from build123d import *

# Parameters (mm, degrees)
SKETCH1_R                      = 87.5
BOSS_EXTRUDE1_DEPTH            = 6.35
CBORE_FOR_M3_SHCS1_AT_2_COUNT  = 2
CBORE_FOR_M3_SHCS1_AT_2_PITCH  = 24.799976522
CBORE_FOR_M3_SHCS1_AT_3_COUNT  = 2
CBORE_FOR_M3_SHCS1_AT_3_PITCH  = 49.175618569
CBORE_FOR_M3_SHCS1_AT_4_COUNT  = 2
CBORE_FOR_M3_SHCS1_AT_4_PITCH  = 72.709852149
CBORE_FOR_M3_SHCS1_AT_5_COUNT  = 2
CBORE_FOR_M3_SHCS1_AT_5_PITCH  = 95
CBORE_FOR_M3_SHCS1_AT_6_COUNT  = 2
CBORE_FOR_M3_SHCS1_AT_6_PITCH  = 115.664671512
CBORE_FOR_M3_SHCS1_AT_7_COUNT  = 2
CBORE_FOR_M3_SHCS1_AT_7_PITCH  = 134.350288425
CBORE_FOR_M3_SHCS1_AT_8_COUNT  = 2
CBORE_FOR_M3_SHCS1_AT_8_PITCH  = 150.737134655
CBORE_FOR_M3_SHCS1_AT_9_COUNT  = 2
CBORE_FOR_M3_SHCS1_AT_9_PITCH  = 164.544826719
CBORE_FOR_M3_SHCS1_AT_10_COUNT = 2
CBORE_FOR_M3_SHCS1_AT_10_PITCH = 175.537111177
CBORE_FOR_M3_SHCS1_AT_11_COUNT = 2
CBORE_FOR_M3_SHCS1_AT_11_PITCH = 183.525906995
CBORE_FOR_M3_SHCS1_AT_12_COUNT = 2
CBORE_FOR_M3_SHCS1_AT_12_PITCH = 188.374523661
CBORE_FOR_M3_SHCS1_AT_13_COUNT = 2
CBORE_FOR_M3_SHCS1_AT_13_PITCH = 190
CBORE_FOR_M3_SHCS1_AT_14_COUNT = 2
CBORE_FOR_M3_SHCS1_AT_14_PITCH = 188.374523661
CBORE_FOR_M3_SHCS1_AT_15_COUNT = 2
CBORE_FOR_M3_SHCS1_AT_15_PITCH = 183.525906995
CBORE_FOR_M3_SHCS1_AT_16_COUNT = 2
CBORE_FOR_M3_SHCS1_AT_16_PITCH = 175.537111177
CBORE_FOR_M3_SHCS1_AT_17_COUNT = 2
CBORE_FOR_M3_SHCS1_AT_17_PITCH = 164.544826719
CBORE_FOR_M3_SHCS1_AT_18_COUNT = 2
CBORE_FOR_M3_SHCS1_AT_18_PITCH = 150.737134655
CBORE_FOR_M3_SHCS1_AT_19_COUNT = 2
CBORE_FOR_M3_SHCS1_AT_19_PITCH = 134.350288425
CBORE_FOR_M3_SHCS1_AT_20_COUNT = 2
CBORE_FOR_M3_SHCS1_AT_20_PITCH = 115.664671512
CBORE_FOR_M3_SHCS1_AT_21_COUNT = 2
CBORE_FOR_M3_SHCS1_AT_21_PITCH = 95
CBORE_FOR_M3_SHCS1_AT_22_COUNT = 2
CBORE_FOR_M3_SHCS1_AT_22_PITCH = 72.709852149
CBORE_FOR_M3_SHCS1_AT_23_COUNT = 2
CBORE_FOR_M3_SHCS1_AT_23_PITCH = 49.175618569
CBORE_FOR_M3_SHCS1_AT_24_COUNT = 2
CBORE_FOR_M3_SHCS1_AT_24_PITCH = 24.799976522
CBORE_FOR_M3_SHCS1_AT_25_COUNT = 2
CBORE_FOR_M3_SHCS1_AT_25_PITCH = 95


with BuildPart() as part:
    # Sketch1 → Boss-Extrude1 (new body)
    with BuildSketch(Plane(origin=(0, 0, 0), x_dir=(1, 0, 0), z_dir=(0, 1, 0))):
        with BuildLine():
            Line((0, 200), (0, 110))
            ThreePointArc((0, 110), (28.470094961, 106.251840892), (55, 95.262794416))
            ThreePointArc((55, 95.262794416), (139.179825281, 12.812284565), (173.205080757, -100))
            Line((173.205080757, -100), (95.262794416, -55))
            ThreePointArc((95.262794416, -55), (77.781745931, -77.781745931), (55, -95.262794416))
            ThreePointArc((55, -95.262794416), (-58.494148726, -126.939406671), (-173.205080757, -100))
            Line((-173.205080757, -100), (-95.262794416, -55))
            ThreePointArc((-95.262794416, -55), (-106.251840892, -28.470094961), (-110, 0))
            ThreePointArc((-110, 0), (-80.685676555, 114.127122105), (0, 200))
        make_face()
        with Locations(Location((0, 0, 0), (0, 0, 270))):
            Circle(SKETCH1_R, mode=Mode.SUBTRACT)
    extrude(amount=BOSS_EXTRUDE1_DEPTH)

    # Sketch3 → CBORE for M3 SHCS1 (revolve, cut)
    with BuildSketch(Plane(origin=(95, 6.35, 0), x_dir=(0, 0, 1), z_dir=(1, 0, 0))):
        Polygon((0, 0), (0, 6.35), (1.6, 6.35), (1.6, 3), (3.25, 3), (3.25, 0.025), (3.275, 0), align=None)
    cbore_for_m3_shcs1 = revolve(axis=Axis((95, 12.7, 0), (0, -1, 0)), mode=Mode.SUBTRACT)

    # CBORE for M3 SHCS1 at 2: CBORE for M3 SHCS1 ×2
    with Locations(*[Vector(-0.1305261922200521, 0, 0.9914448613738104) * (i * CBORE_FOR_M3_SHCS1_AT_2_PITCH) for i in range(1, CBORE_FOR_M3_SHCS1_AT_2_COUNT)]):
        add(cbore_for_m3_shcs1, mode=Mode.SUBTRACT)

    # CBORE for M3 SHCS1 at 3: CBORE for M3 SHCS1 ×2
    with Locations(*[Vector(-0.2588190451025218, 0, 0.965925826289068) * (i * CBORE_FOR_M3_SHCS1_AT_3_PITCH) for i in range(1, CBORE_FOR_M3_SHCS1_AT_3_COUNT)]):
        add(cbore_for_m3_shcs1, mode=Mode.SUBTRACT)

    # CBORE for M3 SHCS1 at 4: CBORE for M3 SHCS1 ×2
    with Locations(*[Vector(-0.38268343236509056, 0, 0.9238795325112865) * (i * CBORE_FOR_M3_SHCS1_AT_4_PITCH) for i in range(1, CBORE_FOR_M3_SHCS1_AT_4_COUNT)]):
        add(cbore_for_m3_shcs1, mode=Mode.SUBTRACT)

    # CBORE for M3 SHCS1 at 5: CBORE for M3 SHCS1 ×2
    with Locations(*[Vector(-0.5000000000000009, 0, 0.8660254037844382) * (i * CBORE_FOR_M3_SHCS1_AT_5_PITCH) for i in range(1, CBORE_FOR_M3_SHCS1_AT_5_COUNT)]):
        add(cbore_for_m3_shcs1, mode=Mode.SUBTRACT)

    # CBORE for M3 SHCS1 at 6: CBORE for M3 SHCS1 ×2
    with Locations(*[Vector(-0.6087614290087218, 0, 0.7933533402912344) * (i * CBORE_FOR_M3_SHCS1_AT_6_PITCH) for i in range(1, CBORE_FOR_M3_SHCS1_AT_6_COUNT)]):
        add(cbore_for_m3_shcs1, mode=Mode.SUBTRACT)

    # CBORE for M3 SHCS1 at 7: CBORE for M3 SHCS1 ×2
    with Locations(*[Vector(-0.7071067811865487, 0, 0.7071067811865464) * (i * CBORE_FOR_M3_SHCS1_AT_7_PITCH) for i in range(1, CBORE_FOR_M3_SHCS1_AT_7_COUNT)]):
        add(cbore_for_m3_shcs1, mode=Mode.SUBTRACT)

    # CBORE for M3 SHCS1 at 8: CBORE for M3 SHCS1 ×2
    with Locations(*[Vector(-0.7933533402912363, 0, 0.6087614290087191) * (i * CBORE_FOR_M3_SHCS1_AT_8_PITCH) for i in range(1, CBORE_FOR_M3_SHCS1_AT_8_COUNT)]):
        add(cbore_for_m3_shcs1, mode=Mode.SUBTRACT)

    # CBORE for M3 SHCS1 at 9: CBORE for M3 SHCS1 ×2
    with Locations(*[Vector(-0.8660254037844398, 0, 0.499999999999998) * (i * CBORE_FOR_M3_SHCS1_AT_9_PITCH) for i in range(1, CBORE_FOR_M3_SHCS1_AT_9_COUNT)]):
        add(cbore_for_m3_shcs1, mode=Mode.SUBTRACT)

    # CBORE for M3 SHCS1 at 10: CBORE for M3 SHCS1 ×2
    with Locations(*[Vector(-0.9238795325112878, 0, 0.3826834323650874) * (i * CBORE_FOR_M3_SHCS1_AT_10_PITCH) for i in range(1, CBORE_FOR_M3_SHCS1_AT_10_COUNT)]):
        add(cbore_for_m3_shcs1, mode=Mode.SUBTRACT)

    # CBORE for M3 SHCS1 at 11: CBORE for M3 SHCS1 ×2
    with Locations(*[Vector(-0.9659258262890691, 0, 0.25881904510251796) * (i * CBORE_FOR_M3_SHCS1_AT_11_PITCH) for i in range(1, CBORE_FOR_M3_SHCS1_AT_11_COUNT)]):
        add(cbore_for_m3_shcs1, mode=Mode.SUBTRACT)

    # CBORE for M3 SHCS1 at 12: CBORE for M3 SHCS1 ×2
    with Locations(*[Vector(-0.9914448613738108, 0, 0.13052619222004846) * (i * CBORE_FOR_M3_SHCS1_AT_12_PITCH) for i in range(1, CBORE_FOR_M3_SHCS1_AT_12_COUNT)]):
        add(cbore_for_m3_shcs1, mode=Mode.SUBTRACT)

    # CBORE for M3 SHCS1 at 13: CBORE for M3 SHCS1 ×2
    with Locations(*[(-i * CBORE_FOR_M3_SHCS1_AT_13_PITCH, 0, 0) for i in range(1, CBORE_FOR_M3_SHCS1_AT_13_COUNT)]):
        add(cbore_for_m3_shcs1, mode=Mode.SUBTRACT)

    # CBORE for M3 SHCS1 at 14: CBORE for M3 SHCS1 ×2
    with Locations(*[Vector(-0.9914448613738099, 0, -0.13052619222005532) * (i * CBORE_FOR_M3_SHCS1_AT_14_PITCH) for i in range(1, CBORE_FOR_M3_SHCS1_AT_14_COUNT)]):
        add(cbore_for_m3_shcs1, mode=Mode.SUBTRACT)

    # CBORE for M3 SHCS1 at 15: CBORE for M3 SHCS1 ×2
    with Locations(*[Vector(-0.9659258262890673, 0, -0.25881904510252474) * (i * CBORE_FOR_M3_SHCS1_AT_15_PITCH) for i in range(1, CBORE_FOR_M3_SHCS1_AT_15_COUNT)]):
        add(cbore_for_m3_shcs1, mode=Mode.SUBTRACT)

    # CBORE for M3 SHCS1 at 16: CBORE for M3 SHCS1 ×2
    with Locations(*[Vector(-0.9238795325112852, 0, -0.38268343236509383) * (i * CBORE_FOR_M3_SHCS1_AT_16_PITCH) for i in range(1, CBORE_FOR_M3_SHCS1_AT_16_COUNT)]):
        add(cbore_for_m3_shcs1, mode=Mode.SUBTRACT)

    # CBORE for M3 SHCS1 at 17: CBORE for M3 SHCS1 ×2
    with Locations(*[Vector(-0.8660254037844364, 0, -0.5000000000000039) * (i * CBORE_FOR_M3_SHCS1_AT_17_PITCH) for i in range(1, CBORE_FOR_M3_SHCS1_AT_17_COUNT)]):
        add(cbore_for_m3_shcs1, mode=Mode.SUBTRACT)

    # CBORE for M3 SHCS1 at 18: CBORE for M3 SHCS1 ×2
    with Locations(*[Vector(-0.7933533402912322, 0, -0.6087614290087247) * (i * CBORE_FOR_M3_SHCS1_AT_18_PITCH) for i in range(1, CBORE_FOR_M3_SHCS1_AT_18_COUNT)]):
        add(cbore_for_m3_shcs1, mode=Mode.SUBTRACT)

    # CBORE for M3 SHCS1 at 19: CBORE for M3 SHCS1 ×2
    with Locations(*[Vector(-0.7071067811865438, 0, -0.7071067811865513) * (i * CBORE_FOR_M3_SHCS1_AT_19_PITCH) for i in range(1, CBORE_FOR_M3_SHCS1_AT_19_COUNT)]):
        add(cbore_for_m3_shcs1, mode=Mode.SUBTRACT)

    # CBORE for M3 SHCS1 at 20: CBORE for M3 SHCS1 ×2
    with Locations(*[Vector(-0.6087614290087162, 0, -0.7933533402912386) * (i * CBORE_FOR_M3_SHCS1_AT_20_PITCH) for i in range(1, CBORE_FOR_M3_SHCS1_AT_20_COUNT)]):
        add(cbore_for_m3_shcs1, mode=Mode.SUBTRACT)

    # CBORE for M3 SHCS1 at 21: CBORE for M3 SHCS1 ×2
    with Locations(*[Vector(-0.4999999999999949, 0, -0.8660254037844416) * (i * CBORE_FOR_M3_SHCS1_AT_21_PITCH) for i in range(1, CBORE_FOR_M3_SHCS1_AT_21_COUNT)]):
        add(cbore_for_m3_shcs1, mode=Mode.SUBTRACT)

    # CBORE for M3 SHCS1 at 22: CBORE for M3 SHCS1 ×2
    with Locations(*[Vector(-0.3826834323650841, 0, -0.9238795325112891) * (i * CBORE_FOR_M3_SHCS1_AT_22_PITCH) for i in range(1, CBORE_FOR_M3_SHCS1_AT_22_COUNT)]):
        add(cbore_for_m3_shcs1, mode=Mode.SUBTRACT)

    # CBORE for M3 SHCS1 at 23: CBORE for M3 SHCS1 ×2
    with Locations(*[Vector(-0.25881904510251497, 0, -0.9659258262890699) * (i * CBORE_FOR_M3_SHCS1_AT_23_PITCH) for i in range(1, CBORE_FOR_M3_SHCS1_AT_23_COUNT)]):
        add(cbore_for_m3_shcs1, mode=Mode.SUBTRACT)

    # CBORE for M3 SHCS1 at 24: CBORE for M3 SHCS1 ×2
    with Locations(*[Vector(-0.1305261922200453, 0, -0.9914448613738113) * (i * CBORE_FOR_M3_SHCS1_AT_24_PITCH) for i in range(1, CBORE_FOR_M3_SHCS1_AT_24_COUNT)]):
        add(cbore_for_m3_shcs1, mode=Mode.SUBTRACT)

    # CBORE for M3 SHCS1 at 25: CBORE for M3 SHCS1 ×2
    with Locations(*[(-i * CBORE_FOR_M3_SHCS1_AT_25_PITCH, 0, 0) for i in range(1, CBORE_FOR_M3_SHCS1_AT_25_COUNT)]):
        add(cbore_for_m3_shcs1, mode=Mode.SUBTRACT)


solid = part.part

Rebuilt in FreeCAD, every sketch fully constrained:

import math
import FreeCAD as App
import Part
import Sketcher

V = App.Vector
Q = App.Units.Quantity


def add_polygon(sketch, points):
    """Adds a closed chain of lines whose ends are joined by coincident constraints."""
    first, n = sketch.GeometryCount, len(points)
    for a, b in zip(points, points[1:] + points[:1]):
        sketch.addGeometry(Part.LineSegment(App.Vector(*a, 0), App.Vector(*b, 0)), False)
    for i in range(n):
        sketch.addConstraint(Sketcher.Constraint("Coincident", first + i, 2, first + (i + 1) % n, 1))

doc = App.newDocument("Part")
params = doc.addObject("Spreadsheet::Sheet", "Params")
for row, (alias, value) in enumerate([
    ("sketch1_diameter", "175 mm"),
    ("sketch1_radius", "110 mm"),
    ("sketch1_height", "90 mm"),
    ("pad1_length", "6.35 mm"),
    ("sketch2_height", "1.6 mm"),
    ("sketch2_width", "6.35 mm"),
    ("sketch2_height2", "1.65 mm"),
    ("groove_angle", "360 deg"),
    ("linearpattern_pitch", "24.799977 mm"),
    ("linearpattern2_pitch", "49.175619 mm"),
    ("linearpattern3_pitch", "72.709852 mm"),
    ("linearpattern4_pitch", "95 mm"),
    ("linearpattern5_pitch", "115.664672 mm"),
    ("linearpattern6_pitch", "134.350288 mm"),
    ("linearpattern7_pitch", "150.737135 mm"),
    ("linearpattern8_pitch", "164.544827 mm"),
    ("linearpattern9_pitch", "175.537111 mm"),
    ("linearpattern10_pitch", "183.525907 mm"),
    ("linearpattern11_pitch", "188.374524 mm"),
    ("linearpattern12_pitch", "190 mm"),
    ("linearpattern13_pitch", "188.374524 mm"),
    ("linearpattern14_pitch", "183.525907 mm"),
    ("linearpattern15_pitch", "175.537111 mm"),
    ("linearpattern16_pitch", "164.544827 mm"),
    ("linearpattern17_pitch", "150.737135 mm"),
    ("linearpattern18_pitch", "134.350288 mm"),
    ("linearpattern19_pitch", "115.664672 mm"),
    ("linearpattern20_pitch", "95 mm"),
    ("linearpattern21_pitch", "72.709852 mm"),
    ("linearpattern22_pitch", "49.175619 mm"),
    ("linearpattern23_pitch", "24.799977 mm"),
    ("linearpattern24_pitch", "95 mm"),
], start=1):
    params.set(f"A{row}", alias)
    params.set(f"B{row}", "=" + value)
    params.setAlias(f"B{row}", alias)

body = doc.addObject("PartDesign::Body", "Body")

# Sketch on XZ plane
sketch1 = body.newObject("Sketcher::SketchObject", "Sketch")
sketch1.AttachmentSupport = (doc.getObject("XZ_Plane"), [""])
sketch1.MapMode = "FlatFace"
sketch1.addGeometry(Part.LineSegment(V(0, -110, 0), V(0, -200, 0)), False)
sketch1.addGeometry(Part.ArcOfCircle(Part.Circle(V(127, 0, 0), V(0, 0, 1), 237), math.radians(180), math.radians(238)), False)
sketch1.addGeometry(Part.ArcOfCircle(Part.Circle(V(0, 0, 0), V(0, 0, 1), 110), math.radians(150), math.radians(180)), False)
sketch1.addGeometry(Part.LineSegment(V(-95, 55, 0), V(-173, 100, 0)), False)
sketch1.addGeometry(Part.ArcOfCircle(Part.Circle(V(-63, -110, 0), V(0, 0, 1), 237), math.radians(60), math.radians(118)), False)
sketch1.addGeometry(Part.ArcOfCircle(Part.Circle(V(0, 0, 0), V(0, 0, 1), 110), math.radians(30), math.radians(60)), False)
sketch1.addGeometry(Part.LineSegment(V(95, 55, 0), V(173, 100, 0)), False)
sketch1.addGeometry(Part.ArcOfCircle(Part.Circle(V(-63, 110, 0), V(0, 0, 1), 237), math.radians(-60), math.radians(-2)), False)
sketch1.addGeometry(Part.ArcOfCircle(Part.Circle(V(0, 0, 0), V(0, 0, 1), 110), math.radians(-90), math.radians(-60)), False)
sketch1.addGeometry(Part.Circle(V(0, 0, 0), V(0, 0, 1), 88), False)
sketch1.addConstraint(Sketcher.Constraint("Coincident", 0, 2, 1, 2))
sketch1.addConstraint(Sketcher.Constraint("Tangent", 1, 1, 2, 2))
sketch1.addConstraint(Sketcher.Constraint("Coincident", 2, 1, 3, 1))
sketch1.addConstraint(Sketcher.Constraint("Coincident", 3, 2, 4, 2))
sketch1.addConstraint(Sketcher.Constraint("Tangent", 4, 1, 5, 2))
sketch1.addConstraint(Sketcher.Constraint("Coincident", 5, 1, 6, 1))
sketch1.addConstraint(Sketcher.Constraint("Coincident", 6, 2, 7, 2))
sketch1.addConstraint(Sketcher.Constraint("Tangent", 7, 1, 8, 2))
sketch1.addConstraint(Sketcher.Constraint("Coincident", 8, 1, 0, 1))
sketch1.addConstraint(Sketcher.Constraint("Vertical", 0))
sketch1.addConstraint(Sketcher.Constraint("Coincident", 2, 3, -1, 1))
sketch1.addConstraint(Sketcher.Constraint("Coincident", 5, 3, -1, 1))
sketch1.addConstraint(Sketcher.Constraint("Coincident", 8, 3, -1, 1))
sketch1.addConstraint(Sketcher.Constraint("Coincident", 9, 3, -1, 1))
sketch1.addConstraint(Sketcher.Constraint("Equal", 1, 4))
sketch1.addConstraint(Sketcher.Constraint("Equal", 2, 5))
sketch1.addConstraint(Sketcher.Constraint("Equal", 4, 7))
sketch1.addConstraint(Sketcher.Constraint("Equal", 5, 8))
sketch1.addConstraint(Sketcher.Constraint("Symmetric", 3, 2, 6, 2, -2))
sketch1.addConstraint(Sketcher.Constraint("PointOnObject", 1, 3, -1))
sketch1.addConstraint(Sketcher.Constraint("PointOnObject", 0, 2, -2))
sketch1.addConstraint(Sketcher.Constraint("Horizontal", 2, 1, 5, 1))
sketch1.addConstraint(Sketcher.Constraint("Vertical", 4, 3, 7, 3))
sketch1.addConstraint(Sketcher.Constraint("Diameter", 9, Q("175 mm")))
sketch1.addConstraint(Sketcher.Constraint("Radius", 2, Q("110 mm")))
sketch1.addConstraint(Sketcher.Constraint("DistanceY", 0, 2, 0, 1, Q("90 mm")))
sketch1.addConstraint(Sketcher.Constraint("Angle", 3, Q("150 deg")))
sketch1.addConstraint(Sketcher.Constraint("DistanceY", -1, 1, 2, 1, Q("55 mm")))
sketch1.setExpression("Constraints[23]", "Params.sketch1_diameter")
sketch1.setExpression("Constraints[24]", "Params.sketch1_radius")
sketch1.setExpression("Constraints[25]", "Params.sketch1_height")
pad1 = body.newObject("PartDesign::Pad", "Pad")
pad1.Profile = sketch1
pad1.setExpression("Length", "Params.pad1_length")
pad1.Reversed = True

# Sketch on YZ plane
sketch2 = body.newObject("Sketcher::SketchObject", "Sketch001")
sketch2.AttachmentSupport = (doc.getObject("YZ_Plane"), [""])
sketch2.MapMode = "FlatFace"
sketch2.AttachmentOffset = App.Placement(V(0, 0, 95), App.Rotation())
add_polygon(sketch2, [(0, 0), (6.35, 0), (6.35, 3.275), (6.325, 3.25), (3.35, 3.25), (3.35, 1.6), (0, 1.6)])  # lines 0-6
sketch2.addConstraint(Sketcher.Constraint("Horizontal", 0))
sketch2.addConstraint(Sketcher.Constraint("Vertical", 1))
sketch2.addConstraint(Sketcher.Constraint("Horizontal", 3))
sketch2.addConstraint(Sketcher.Constraint("Vertical", 4))
sketch2.addConstraint(Sketcher.Constraint("Horizontal", 5))
sketch2.addConstraint(Sketcher.Constraint("Vertical", 6))
sketch2.addConstraint(Sketcher.Constraint("Coincident", 6, 2, -1, 1))
sketch2.addConstraint(Sketcher.Constraint("Angle", 2, Q("-135 deg")))
sketch2.addConstraint(Sketcher.Constraint("DistanceY", 6, 2, 6, 1, Q("1.6 mm")))
sketch2.addConstraint(Sketcher.Constraint("DistanceX", 3, 2, 1, 2, Q("3 mm")))
sketch2.addConstraint(Sketcher.Constraint("DistanceX", 0, 1, 0, 2, Q("6.35 mm")))
sketch2.addConstraint(Sketcher.Constraint("DistanceY", 4, 2, 4, 1, Q("1.65 mm")))
sketch2.addConstraint(Sketcher.Constraint("DistanceX", 3, 2, 3, 1, Q("2.975 mm")))
sketch2.setExpression("Constraints[15]", "Params.sketch2_height")
sketch2.setExpression("Constraints[17]", "Params.sketch2_width")
sketch2.setExpression("Constraints[18]", "Params.sketch2_height2")
groove = body.newObject("PartDesign::Groove", "Groove")
groove.Profile = sketch2
groove.ReferenceAxis = (sketch2, ["H_Axis"])
groove.setExpression("Angle", "Params.groove_angle")
doc.recompute()

datumline = body.newObject("PartDesign::Line", "DatumLine")
datumline.Placement = App.Placement(V(0, 0, 0), App.Rotation(V(0, 0, 1), V(-0.130526192, 0, 0.991444861)))
linearpattern = body.newObject("PartDesign::LinearPattern", "LinearPattern")
linearpattern.Originals = [groove]
linearpattern.Direction = (datumline, [""])
linearpattern.Mode = "offset"
linearpattern.setExpression("Offset", "Params.linearpattern_pitch")
linearpattern.Occurrences = 2
body.Tip = linearpattern
doc.recompute()

datumline2 = body.newObject("PartDesign::Line", "DatumLine001")
datumline2.Placement = App.Placement(V(0, 0, 0), App.Rotation(V(0, 0, 1), V(-0.258819045, 0, 0.965925826)))
linearpattern2 = body.newObject("PartDesign::LinearPattern", "LinearPattern001")
linearpattern2.Originals = [groove]
linearpattern2.Direction = (datumline2, [""])
linearpattern2.Mode = "offset"
linearpattern2.setExpression("Offset", "Params.linearpattern2_pitch")
linearpattern2.Occurrences = 2
body.Tip = linearpattern2
doc.recompute()

datumline3 = body.newObject("PartDesign::Line", "DatumLine002")
datumline3.Placement = App.Placement(V(0, 0, 0), App.Rotation(V(0, 0, 1), V(-0.382683432, 0, 0.923879533)))
linearpattern3 = body.newObject("PartDesign::LinearPattern", "LinearPattern002")
linearpattern3.Originals = [groove]
linearpattern3.Direction = (datumline3, [""])
linearpattern3.Mode = "offset"
linearpattern3.setExpression("Offset", "Params.linearpattern3_pitch")
linearpattern3.Occurrences = 2
body.Tip = linearpattern3
doc.recompute()

datumline4 = body.newObject("PartDesign::Line", "DatumLine003")
datumline4.Placement = App.Placement(V(0, 0, 0), App.Rotation(V(0, 0, 1), V(-0.5, 0, 0.866025404)))
linearpattern4 = body.newObject("PartDesign::LinearPattern", "LinearPattern003")
linearpattern4.Originals = [groove]
linearpattern4.Direction = (datumline4, [""])
linearpattern4.Mode = "offset"
linearpattern4.setExpression("Offset", "Params.linearpattern4_pitch")
linearpattern4.Occurrences = 2
body.Tip = linearpattern4
doc.recompute()

datumline5 = body.newObject("PartDesign::Line", "DatumLine004")
datumline5.Placement = App.Placement(V(0, 0, 0), App.Rotation(V(0, 0, 1), V(-0.608761429, 0, 0.79335334)))
linearpattern5 = body.newObject("PartDesign::LinearPattern", "LinearPattern004")
linearpattern5.Originals = [groove]
linearpattern5.Direction = (datumline5, [""])
linearpattern5.Mode = "offset"
linearpattern5.setExpression("Offset", "Params.linearpattern5_pitch")
linearpattern5.Occurrences = 2
body.Tip = linearpattern5
doc.recompute()

datumline6 = body.newObject("PartDesign::Line", "DatumLine005")
datumline6.Placement = App.Placement(V(0, 0, 0), App.Rotation(V(0, 0, 1), V(-0.707106781, 0, 0.707106781)))
linearpattern6 = body.newObject("PartDesign::LinearPattern", "LinearPattern005")
linearpattern6.Originals = [groove]
linearpattern6.Direction = (datumline6, [""])
linearpattern6.Mode = "offset"
linearpattern6.setExpression("Offset", "Params.linearpattern6_pitch")
linearpattern6.Occurrences = 2
body.Tip = linearpattern6
doc.recompute()

datumline7 = body.newObject("PartDesign::Line", "DatumLine006")
datumline7.Placement = App.Placement(V(0, 0, 0), App.Rotation(V(0, 0, 1), V(-0.79335334, 0, 0.608761429)))
linearpattern7 = body.newObject("PartDesign::LinearPattern", "LinearPattern006")
linearpattern7.Originals = [groove]
linearpattern7.Direction = (datumline7, [""])
linearpattern7.Mode = "offset"
linearpattern7.setExpression("Offset", "Params.linearpattern7_pitch")
linearpattern7.Occurrences = 2
body.Tip = linearpattern7
doc.recompute()

datumline8 = body.newObject("PartDesign::Line", "DatumLine007")
datumline8.Placement = App.Placement(V(0, 0, 0), App.Rotation(V(0, 0, 1), V(-0.866025404, 0, 0.5)))
linearpattern8 = body.newObject("PartDesign::LinearPattern", "LinearPattern007")
linearpattern8.Originals = [groove]
linearpattern8.Direction = (datumline8, [""])
linearpattern8.Mode = "offset"
linearpattern8.setExpression("Offset", "Params.linearpattern8_pitch")
linearpattern8.Occurrences = 2
body.Tip = linearpattern8
doc.recompute()

datumline9 = body.newObject("PartDesign::Line", "DatumLine008")
datumline9.Placement = App.Placement(V(0, 0, 0), App.Rotation(V(0, 0, 1), V(-0.923879533, 0, 0.382683432)))
linearpattern9 = body.newObject("PartDesign::LinearPattern", "LinearPattern008")
linearpattern9.Originals = [groove]
linearpattern9.Direction = (datumline9, [""])
linearpattern9.Mode = "offset"
linearpattern9.setExpression("Offset", "Params.linearpattern9_pitch")
linearpattern9.Occurrences = 2
body.Tip = linearpattern9
doc.recompute()

datumline10 = body.newObject("PartDesign::Line", "DatumLine009")
datumline10.Placement = App.Placement(V(0, 0, 0), App.Rotation(V(0, 0, 1), V(-0.965925826, 0, 0.258819045)))
linearpattern10 = body.newObject("PartDesign::LinearPattern", "LinearPattern009")
linearpattern10.Originals = [groove]
linearpattern10.Direction = (datumline10, [""])
linearpattern10.Mode = "offset"
linearpattern10.setExpression("Offset", "Params.linearpattern10_pitch")
linearpattern10.Occurrences = 2
body.Tip = linearpattern10
doc.recompute()

datumline11 = body.newObject("PartDesign::Line", "DatumLine010")
datumline11.Placement = App.Placement(V(0, 0, 0), App.Rotation(V(0, 0, 1), V(-0.991444861, 0, 0.130526192)))
linearpattern11 = body.newObject("PartDesign::LinearPattern", "LinearPattern010")
linearpattern11.Originals = [groove]
linearpattern11.Direction = (datumline11, [""])
linearpattern11.Mode = "offset"
linearpattern11.setExpression("Offset", "Params.linearpattern11_pitch")
linearpattern11.Occurrences = 2
body.Tip = linearpattern11
doc.recompute()

linearpattern12 = body.newObject("PartDesign::LinearPattern", "LinearPattern011")
linearpattern12.Originals = [groove]
linearpattern12.Direction = (doc.getObject("X_Axis"), [""])
linearpattern12.Mode = "offset"
linearpattern12.setExpression("Offset", "Params.linearpattern12_pitch")
linearpattern12.Occurrences = 2
linearpattern12.Reversed = True
body.Tip = linearpattern12
doc.recompute()

datumline12 = body.newObject("PartDesign::Line", "DatumLine011")
datumline12.Placement = App.Placement(V(0, 0, 0), App.Rotation(V(0, 0, 1), V(-0.991444861, 0, -0.130526192)))
linearpattern13 = body.newObject("PartDesign::LinearPattern", "LinearPattern012")
linearpattern13.Originals = [groove]
linearpattern13.Direction = (datumline12, [""])
linearpattern13.Mode = "offset"
linearpattern13.setExpression("Offset", "Params.linearpattern13_pitch")
linearpattern13.Occurrences = 2
body.Tip = linearpattern13
doc.recompute()

datumline13 = body.newObject("PartDesign::Line", "DatumLine012")
datumline13.Placement = App.Placement(V(0, 0, 0), App.Rotation(V(0, 0, 1), V(-0.965925826, 0, -0.258819045)))
linearpattern14 = body.newObject("PartDesign::LinearPattern", "LinearPattern013")
linearpattern14.Originals = [groove]
linearpattern14.Direction = (datumline13, [""])
linearpattern14.Mode = "offset"
linearpattern14.setExpression("Offset", "Params.linearpattern14_pitch")
linearpattern14.Occurrences = 2
body.Tip = linearpattern14
doc.recompute()

datumline14 = body.newObject("PartDesign::Line", "DatumLine013")
datumline14.Placement = App.Placement(V(0, 0, 0), App.Rotation(V(0, 0, 1), V(-0.923879533, 0, -0.382683432)))
linearpattern15 = body.newObject("PartDesign::LinearPattern", "LinearPattern014")
linearpattern15.Originals = [groove]
linearpattern15.Direction = (datumline14, [""])
linearpattern15.Mode = "offset"
linearpattern15.setExpression("Offset", "Params.linearpattern15_pitch")
linearpattern15.Occurrences = 2
body.Tip = linearpattern15
doc.recompute()

datumline15 = body.newObject("PartDesign::Line", "DatumLine014")
datumline15.Placement = App.Placement(V(0, 0, 0), App.Rotation(V(0, 0, 1), V(-0.866025404, 0, -0.5)))
linearpattern16 = body.newObject("PartDesign::LinearPattern", "LinearPattern015")
linearpattern16.Originals = [groove]
linearpattern16.Direction = (datumline15, [""])
linearpattern16.Mode = "offset"
linearpattern16.setExpression("Offset", "Params.linearpattern16_pitch")
linearpattern16.Occurrences = 2
body.Tip = linearpattern16
doc.recompute()

datumline16 = body.newObject("PartDesign::Line", "DatumLine015")
datumline16.Placement = App.Placement(V(0, 0, 0), App.Rotation(V(0, 0, 1), V(-0.79335334, 0, -0.608761429)))
linearpattern17 = body.newObject("PartDesign::LinearPattern", "LinearPattern016")
linearpattern17.Originals = [groove]
linearpattern17.Direction = (datumline16, [""])
linearpattern17.Mode = "offset"
linearpattern17.setExpression("Offset", "Params.linearpattern17_pitch")
linearpattern17.Occurrences = 2
body.Tip = linearpattern17
doc.recompute()

datumline17 = body.newObject("PartDesign::Line", "DatumLine016")
datumline17.Placement = App.Placement(V(0, 0, 0), App.Rotation(V(0, 0, 1), V(-0.707106781, 0, -0.707106781)))
linearpattern18 = body.newObject("PartDesign::LinearPattern", "LinearPattern017")
linearpattern18.Originals = [groove]
linearpattern18.Direction = (datumline17, [""])
linearpattern18.Mode = "offset"
linearpattern18.setExpression("Offset", "Params.linearpattern18_pitch")
linearpattern18.Occurrences = 2
body.Tip = linearpattern18
doc.recompute()

datumline18 = body.newObject("PartDesign::Line", "DatumLine017")
datumline18.Placement = App.Placement(V(0, 0, 0), App.Rotation(V(0, 0, 1), V(-0.608761429, 0, -0.79335334)))
linearpattern19 = body.newObject("PartDesign::LinearPattern", "LinearPattern018")
linearpattern19.Originals = [groove]
linearpattern19.Direction = (datumline18, [""])
linearpattern19.Mode = "offset"
linearpattern19.setExpression("Offset", "Params.linearpattern19_pitch")
linearpattern19.Occurrences = 2
body.Tip = linearpattern19
doc.recompute()

datumline19 = body.newObject("PartDesign::Line", "DatumLine018")
datumline19.Placement = App.Placement(V(0, 0, 0), App.Rotation(V(0, 0, 1), V(-0.5, 0, -0.866025404)))
linearpattern20 = body.newObject("PartDesign::LinearPattern", "LinearPattern019")
linearpattern20.Originals = [groove]
linearpattern20.Direction = (datumline19, [""])
linearpattern20.Mode = "offset"
linearpattern20.setExpression("Offset", "Params.linearpattern20_pitch")
linearpattern20.Occurrences = 2
body.Tip = linearpattern20
doc.recompute()

datumline20 = body.newObject("PartDesign::Line", "DatumLine019")
datumline20.Placement = App.Placement(V(0, 0, 0), App.Rotation(V(0, 0, 1), V(-0.382683432, 0, -0.923879533)))
linearpattern21 = body.newObject("PartDesign::LinearPattern", "LinearPattern020")
linearpattern21.Originals = [groove]
linearpattern21.Direction = (datumline20, [""])
linearpattern21.Mode = "offset"
linearpattern21.setExpression("Offset", "Params.linearpattern21_pitch")
linearpattern21.Occurrences = 2
body.Tip = linearpattern21
doc.recompute()

datumline21 = body.newObject("PartDesign::Line", "DatumLine020")
datumline21.Placement = App.Placement(V(0, 0, 0), App.Rotation(V(0, 0, 1), V(-0.258819045, 0, -0.965925826)))
linearpattern22 = body.newObject("PartDesign::LinearPattern", "LinearPattern021")
linearpattern22.Originals = [groove]
linearpattern22.Direction = (datumline21, [""])
linearpattern22.Mode = "offset"
linearpattern22.setExpression("Offset", "Params.linearpattern22_pitch")
linearpattern22.Occurrences = 2
body.Tip = linearpattern22
doc.recompute()

datumline22 = body.newObject("PartDesign::Line", "DatumLine021")
datumline22.Placement = App.Placement(V(0, 0, 0), App.Rotation(V(0, 0, 1), V(-0.130526192, 0, -0.991444861)))
linearpattern23 = body.newObject("PartDesign::LinearPattern", "LinearPattern022")
linearpattern23.Originals = [groove]
linearpattern23.Direction = (datumline22, [""])
linearpattern23.Mode = "offset"
linearpattern23.setExpression("Offset", "Params.linearpattern23_pitch")
linearpattern23.Occurrences = 2
body.Tip = linearpattern23
doc.recompute()

linearpattern24 = body.newObject("PartDesign::LinearPattern", "LinearPattern023")
linearpattern24.Originals = [groove]
linearpattern24.Direction = (doc.getObject("X_Axis"), [""])
linearpattern24.Mode = "offset"
linearpattern24.setExpression("Offset", "Params.linearpattern24_pitch")
linearpattern24.Occurrences = 2
linearpattern24.Reversed = True
body.Tip = linearpattern24

doc.recompute()
